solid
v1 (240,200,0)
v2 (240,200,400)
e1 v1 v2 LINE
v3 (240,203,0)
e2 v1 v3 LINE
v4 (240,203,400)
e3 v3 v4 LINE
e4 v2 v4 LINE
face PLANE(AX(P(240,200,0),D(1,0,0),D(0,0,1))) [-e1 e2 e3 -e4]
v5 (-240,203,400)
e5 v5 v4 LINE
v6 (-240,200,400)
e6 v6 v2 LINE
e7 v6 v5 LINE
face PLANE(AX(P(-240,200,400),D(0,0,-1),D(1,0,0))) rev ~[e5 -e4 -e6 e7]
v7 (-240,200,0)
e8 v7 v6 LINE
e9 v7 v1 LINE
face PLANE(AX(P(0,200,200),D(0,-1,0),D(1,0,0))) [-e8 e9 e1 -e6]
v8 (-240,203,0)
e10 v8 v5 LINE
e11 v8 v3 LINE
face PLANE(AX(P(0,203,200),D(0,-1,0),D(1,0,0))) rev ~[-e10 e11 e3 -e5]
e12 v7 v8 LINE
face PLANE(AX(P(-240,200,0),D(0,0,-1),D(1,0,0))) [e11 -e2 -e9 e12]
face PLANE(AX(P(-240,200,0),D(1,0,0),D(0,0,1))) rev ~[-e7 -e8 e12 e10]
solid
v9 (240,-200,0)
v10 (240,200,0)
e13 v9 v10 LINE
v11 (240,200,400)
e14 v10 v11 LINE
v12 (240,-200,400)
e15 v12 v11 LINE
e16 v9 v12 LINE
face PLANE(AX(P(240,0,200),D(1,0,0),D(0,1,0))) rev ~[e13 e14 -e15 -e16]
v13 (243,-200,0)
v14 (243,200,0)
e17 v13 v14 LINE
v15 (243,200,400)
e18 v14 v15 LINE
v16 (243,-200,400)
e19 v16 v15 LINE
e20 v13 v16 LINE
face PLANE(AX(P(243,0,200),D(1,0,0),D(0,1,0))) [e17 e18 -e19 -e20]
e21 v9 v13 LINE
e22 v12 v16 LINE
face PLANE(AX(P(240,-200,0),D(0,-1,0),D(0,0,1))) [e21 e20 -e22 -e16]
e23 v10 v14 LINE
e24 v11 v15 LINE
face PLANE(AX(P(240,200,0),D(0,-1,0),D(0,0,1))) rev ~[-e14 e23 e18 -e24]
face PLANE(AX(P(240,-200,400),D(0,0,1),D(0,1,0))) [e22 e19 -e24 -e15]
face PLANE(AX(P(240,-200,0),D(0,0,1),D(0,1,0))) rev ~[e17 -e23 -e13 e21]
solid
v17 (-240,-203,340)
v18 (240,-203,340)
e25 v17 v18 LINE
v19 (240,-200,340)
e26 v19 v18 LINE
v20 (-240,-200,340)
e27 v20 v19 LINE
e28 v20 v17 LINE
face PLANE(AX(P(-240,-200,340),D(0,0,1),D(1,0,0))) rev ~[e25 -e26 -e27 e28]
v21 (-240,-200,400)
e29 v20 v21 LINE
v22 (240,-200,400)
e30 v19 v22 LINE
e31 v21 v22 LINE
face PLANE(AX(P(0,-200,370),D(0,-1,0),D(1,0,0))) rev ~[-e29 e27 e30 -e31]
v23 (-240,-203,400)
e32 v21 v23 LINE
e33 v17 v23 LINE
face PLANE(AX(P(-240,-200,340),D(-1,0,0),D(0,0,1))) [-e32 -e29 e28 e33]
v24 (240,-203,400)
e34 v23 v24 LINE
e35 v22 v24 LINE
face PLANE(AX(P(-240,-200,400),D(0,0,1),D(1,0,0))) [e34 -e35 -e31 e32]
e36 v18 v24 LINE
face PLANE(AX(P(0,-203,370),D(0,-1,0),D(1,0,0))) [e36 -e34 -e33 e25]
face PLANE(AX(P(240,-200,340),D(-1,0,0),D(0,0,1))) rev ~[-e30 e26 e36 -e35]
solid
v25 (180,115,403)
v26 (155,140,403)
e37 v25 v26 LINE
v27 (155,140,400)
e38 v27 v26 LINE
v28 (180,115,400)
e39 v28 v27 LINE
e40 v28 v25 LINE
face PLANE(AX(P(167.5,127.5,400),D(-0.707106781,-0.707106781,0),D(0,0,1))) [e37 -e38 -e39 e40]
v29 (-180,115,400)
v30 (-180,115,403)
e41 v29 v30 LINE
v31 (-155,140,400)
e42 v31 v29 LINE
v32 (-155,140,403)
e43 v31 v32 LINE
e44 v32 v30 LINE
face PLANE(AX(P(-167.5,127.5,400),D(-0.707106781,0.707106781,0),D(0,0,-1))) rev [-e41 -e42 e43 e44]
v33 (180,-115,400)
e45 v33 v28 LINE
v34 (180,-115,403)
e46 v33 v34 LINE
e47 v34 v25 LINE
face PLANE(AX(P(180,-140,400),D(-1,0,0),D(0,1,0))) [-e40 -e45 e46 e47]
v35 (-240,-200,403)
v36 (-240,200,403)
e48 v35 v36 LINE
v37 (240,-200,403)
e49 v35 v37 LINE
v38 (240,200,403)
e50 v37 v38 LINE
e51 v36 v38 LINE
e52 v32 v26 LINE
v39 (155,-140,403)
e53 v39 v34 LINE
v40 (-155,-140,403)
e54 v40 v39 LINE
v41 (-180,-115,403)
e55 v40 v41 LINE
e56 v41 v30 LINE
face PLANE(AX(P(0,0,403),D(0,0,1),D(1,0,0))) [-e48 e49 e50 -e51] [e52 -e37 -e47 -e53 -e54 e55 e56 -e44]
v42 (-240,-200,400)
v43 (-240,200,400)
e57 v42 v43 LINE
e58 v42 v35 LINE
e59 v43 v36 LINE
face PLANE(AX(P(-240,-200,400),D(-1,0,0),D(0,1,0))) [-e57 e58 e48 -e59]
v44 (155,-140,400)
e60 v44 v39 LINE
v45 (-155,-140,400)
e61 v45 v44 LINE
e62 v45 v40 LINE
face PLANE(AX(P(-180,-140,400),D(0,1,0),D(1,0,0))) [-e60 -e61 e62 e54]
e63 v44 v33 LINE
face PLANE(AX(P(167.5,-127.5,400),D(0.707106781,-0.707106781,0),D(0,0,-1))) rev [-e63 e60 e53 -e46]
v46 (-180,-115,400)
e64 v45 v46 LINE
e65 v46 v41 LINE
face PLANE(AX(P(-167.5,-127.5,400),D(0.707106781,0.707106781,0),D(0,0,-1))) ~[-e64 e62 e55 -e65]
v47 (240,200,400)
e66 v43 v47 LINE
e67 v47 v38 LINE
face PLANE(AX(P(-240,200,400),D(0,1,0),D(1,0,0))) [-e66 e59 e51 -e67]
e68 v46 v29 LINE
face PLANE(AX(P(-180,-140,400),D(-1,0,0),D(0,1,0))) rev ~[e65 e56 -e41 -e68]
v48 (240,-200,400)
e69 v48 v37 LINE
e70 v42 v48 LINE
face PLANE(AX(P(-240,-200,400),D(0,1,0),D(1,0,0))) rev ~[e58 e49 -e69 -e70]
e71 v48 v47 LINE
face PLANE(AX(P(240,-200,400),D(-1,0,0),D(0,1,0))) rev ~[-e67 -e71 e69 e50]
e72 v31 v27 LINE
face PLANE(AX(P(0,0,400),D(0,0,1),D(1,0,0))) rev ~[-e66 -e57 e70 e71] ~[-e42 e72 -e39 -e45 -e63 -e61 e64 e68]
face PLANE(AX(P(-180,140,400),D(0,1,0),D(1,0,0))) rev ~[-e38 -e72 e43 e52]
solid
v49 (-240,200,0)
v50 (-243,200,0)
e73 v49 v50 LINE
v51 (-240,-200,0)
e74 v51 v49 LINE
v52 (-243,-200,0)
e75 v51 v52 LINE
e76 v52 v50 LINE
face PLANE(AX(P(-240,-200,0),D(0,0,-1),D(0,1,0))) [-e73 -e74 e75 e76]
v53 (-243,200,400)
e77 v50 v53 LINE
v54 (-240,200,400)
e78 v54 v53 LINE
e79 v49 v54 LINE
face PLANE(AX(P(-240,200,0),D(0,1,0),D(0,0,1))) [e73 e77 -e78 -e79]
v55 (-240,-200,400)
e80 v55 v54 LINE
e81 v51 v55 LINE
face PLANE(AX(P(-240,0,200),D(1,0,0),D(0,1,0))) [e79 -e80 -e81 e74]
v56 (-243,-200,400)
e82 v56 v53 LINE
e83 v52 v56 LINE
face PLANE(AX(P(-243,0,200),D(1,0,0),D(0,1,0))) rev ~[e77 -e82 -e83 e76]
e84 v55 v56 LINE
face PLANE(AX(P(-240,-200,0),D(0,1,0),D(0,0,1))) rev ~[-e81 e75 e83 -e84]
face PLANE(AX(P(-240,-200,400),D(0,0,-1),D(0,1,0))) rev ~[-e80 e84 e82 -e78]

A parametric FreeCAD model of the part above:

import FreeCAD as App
import Part
import Sketcher
Q = App.Units.Quantity


def edges_at(feature, points):
    """Names of the edges that pass closest to the given points."""
    edges = feature.Shape.Edges
    near = lambda p: min(range(len(edges)), key=lambda i: edges[i].distToShape(Part.Vertex(*p))[0])
    return sorted({f"Edge{near(p) + 1}" for p in points})

doc = App.newDocument("Part")
params = doc.addObject("Spreadsheet::Sheet", "Params")
for row, (alias, value) in enumerate([
    ("sketch1_width", "480 mm"),
    ("sketch1_width2", "360 mm"),
    ("sketch1_height", "400 mm"),
    ("sketch1_height2", "280 mm"),
    ("pad1_length", "3 mm"),
    ("chamfer_size", "25 mm"),
    ("sketch2_width", "400 mm"),
    ("pad2_length", "3 mm"),
    ("sketch3_width", "400 mm"),
    ("pad3_length", "3 mm"),
    ("sketch4_width", "480 mm"),
    ("sketch4_height", "400 mm"),
    ("pad4_length", "3 mm"),
    ("sketch5_width", "480 mm"),
    ("sketch5_height", "60 mm"),
    ("pad5_length", "3 mm"),
], start=1):
    params.set(f"A{row}", alias)
    params.set(f"B{row}", "=" + value)
    params.setAlias(f"B{row}", alias)

body = doc.addObject("PartDesign::Body", "Body")

sketch1 = body.newObject("Sketcher::SketchObject", "Sketch")
sketch1.AttachmentSupport = (doc.getObject("XY_Plane"), [""])
sketch1.MapMode = "FlatFace"
sketch1.AttachmentOffset = App.Placement(App.Vector(0, 0, 400), App.Rotation())
sketch1.addGeometry([
    Part.LineSegment(App.Vector(-240, 200, 0), App.Vector(-240, -200, 0)),
    Part.LineSegment(App.Vector(-240, -200, 0), App.Vector(240, -200, 0)),
    Part.LineSegment(App.Vector(240, -200, 0), App.Vector(240, 200, 0)),
    Part.LineSegment(App.Vector(240, 200, 0), App.Vector(-240, 200, 0)),
    Part.LineSegment(App.Vector(180, -140, 0), App.Vector(-180, -140, 0)),
    Part.LineSegment(App.Vector(-180, -140, 0), App.Vector(-180, 140, 0)),
    Part.LineSegment(App.Vector(-180, 140, 0), App.Vector(180, 140, 0)),
    Part.LineSegment(App.Vector(180, 140, 0), App.Vector(180, -140, 0)),
], False)
sketch1.addConstraint([
    Sketcher.Constraint("Coincident", 0, 2, 1, 1),
    Sketcher.Constraint("Coincident", 1, 2, 2, 1),
    Sketcher.Constraint("Coincident", 2, 2, 3, 1),
    Sketcher.Constraint("Coincident", 3, 2, 0, 1),
    Sketcher.Constraint("Coincident", 4, 2, 5, 1),
    Sketcher.Constraint("Coincident", 5, 2, 6, 1),
    Sketcher.Constraint("Coincident", 6, 2, 7, 1),
    Sketcher.Constraint("Coincident", 7, 2, 4, 1),
    Sketcher.Constraint("Vertical", 0),
    Sketcher.Constraint("Horizontal", 1),
    Sketcher.Constraint("Vertical", 2),
    Sketcher.Constraint("Horizontal", 3),
    Sketcher.Constraint("Horizontal", 4),
    Sketcher.Constraint("Vertical", 5),
    Sketcher.Constraint("Horizontal", 6),
    Sketcher.Constraint("Vertical", 7),
    Sketcher.Constraint("Symmetric", 0, 2, 2, 2, -1, 1),
    Sketcher.Constraint("Symmetric", 4, 2, 6, 2, -1, 1),
    Sketcher.Constraint("DistanceX", 1, 1, 1, 2, Q("480 mm")),
    Sketcher.Constraint("DistanceX", 4, 2, 4, 1, Q("360 mm")),
    Sketcher.Constraint("DistanceY", 0, 2, 0, 1, Q("400 mm")),
    Sketcher.Constraint("DistanceY", 5, 1, 5, 2, Q("280 mm")),
])
sketch1.setExpression("Constraints[18]", "Params.sketch1_width")
sketch1.setExpression("Constraints[19]", "Params.sketch1_width2")
sketch1.setExpression("Constraints[20]", "Params.sketch1_height")
sketch1.setExpression("Constraints[21]", "Params.sketch1_height2")
pad1 = body.newObject("PartDesign::Pad", "Pad")
pad1.Profile = sketch1
pad1.setExpression("Length", "Params.pad1_length")
doc.recompute()

chamfer = body.newObject("PartDesign::Chamfer", "Chamfer")
chamfer.Base = (pad1, edges_at(pad1, [
    (-180, -140, 401.5),
    (-180, 140, 401.5),
    (180, 140, 401.5),
    (180, -140, 401.5),
]))
chamfer.setExpression("Size", "Params.chamfer_size")
body2 = doc.addObject("PartDesign::Body", "Body001")

sketch2 = body2.newObject("Sketcher::SketchObject", "Sketch001")
sketch2.AttachmentSupport = (doc.getObject("YZ_Plane001"), [""])
sketch2.MapMode = "FlatFace"
sketch2.AttachmentOffset = App.Placement(App.Vector(0, 0, -240), App.Rotation())
sketch2.addGeometry([
    Part.LineSegment(App.Vector(-200, 400, 0), App.Vector(-200, 0, 0)),
    Part.LineSegment(App.Vector(-200, 0, 0), App.Vector(200, 0, 0)),
    Part.LineSegment(App.Vector(200, 0, 0), App.Vector(200, 400, 0)),
    Part.LineSegment(App.Vector(200, 400, 0), App.Vector(-200, 400, 0)),
], False)
sketch2.addConstraint([
    Sketcher.Constraint("Coincident", 0, 2, 1, 1),
    Sketcher.Constraint("Coincident", 1, 2, 2, 1),
    Sketcher.Constraint("Coincident", 2, 2, 3, 1),
    Sketcher.Constraint("Coincident", 3, 2, 0, 1),
    Sketcher.Constraint("Vertical", 0),
    Sketcher.Constraint("Horizontal", 1),
    Sketcher.Constraint("Vertical", 2),
    Sketcher.Constraint("Horizontal", 3),
    Sketcher.Constraint("Symmetric", 0, 2, 1, 2, -1, 1),
    Sketcher.Constraint("Equal", 3, 0),
    Sketcher.Constraint("DistanceX", 1, 1, 1, 2, Q("400 mm")),
])
sketch2.setExpression("Constraints[10]", "Params.sketch2_width")
pad2 = body2.newObject("PartDesign::Pad", "Pad001")
pad2.Profile = sketch2
pad2.setExpression("Length", "Params.pad2_length")
pad2.Reversed = True
body3 = doc.addObject("PartDesign::Body", "Body002")

sketch3 = body3.newObject("Sketcher::SketchObject", "Sketch002")
sketch3.AttachmentSupport = (doc.getObject("YZ_Plane002"), [""])
sketch3.MapMode = "FlatFace"
sketch3.AttachmentOffset = App.Placement(App.Vector(0, 0, 240), App.Rotation())
sketch3.addGeometry([
    Part.LineSegment(App.Vector(-200, 400, 0), App.Vector(-200, 0, 0)),
    Part.LineSegment(App.Vector(-200, 0, 0), App.Vector(200, 0, 0)),
    Part.LineSegment(App.Vector(200, 0, 0), App.Vector(200, 400, 0)),
    Part.LineSegment(App.Vector(200, 400, 0), App.Vector(-200, 400, 0)),
], False)
sketch3.addConstraint([
    Sketcher.Constraint("Coincident", 0, 2, 1, 1),
    Sketcher.Constraint("Coincident", 1, 2, 2, 1),
    Sketcher.Constraint("Coincident", 2, 2, 3, 1),
    Sketcher.Constraint("Coincident", 3, 2, 0, 1),
    Sketcher.Constraint("Vertical", 0),
    Sketcher.Constraint("Horizontal", 1),
    Sketcher.Constraint("Vertical", 2),
    Sketcher.Constraint("Horizontal", 3),
    Sketcher.Constraint("Symmetric", 0, 2, 1, 2, -1, 1),
    Sketcher.Constraint("Equal", 3, 0),
    Sketcher.Constraint("DistanceX", 1, 1, 1, 2, Q("400 mm")),
])
sketch3.setExpression("Constraints[10]", "Params.sketch3_width")
pad3 = body3.newObject("PartDesign::Pad", "Pad002")
pad3.Profile = sketch3
pad3.setExpression("Length", "Params.pad3_length")
body4 = doc.addObject("PartDesign::Body", "Body003")

sketch4 = body4.newObject("Sketcher::SketchObject", "Sketch003")
sketch4.AttachmentSupport = (doc.getObject("XZ_Plane003"), [""])
sketch4.MapMode = "FlatFace"
sketch4.AttachmentOffset = App.Placement(App.Vector(0, 0, -200), App.Rotation())
sketch4.addGeometry([
    Part.LineSegment(App.Vector(-240, 400, 0), App.Vector(-240, 0, 0)),
    Part.LineSegment(App.Vector(-240, 0, 0), App.Vector(240, 0, 0)),
    Part.LineSegment(App.Vector(240, 0, 0), App.Vector(240, 400, 0)),
    Part.LineSegment(App.Vector(240, 400, 0), App.Vector(-240, 400, 0)),
], False)
sketch4.addConstraint([
    Sketcher.Constraint("Coincident", 0, 2, 1, 1),
    Sketcher.Constraint("Coincident", 1, 2, 2, 1),
    Sketcher.Constraint("Coincident", 2, 2, 3, 1),
    Sketcher.Constraint("Coincident", 3, 2, 0, 1),
    Sketcher.Constraint("Vertical", 0),
    Sketcher.Constraint("Horizontal", 1),
    Sketcher.Constraint("Vertical", 2),
    Sketcher.Constraint("Horizontal", 3),
    Sketcher.Constraint("Symmetric", 0, 2, 1, 2, -1, 1),
    Sketcher.Constraint("DistanceX", 1, 1, 1, 2, Q("480 mm")),
    Sketcher.Constraint("DistanceY", 0, 2, 0, 1, Q("400 mm")),
])
sketch4.setExpression("Constraints[9]", "Params.sketch4_width")
sketch4.setExpression("Constraints[10]", "Params.sketch4_height")
pad4 = body4.newObject("PartDesign::Pad", "Pad003")
pad4.Profile = sketch4
pad4.setExpression("Length", "Params.pad4_length")
pad4.Reversed = True
body5 = doc.addObject("PartDesign::Body", "Body004")

sketch5 = body5.newObject("Sketcher::SketchObject", "Sketch004")
sketch5.AttachmentSupport = (doc.getObject("XZ_Plane004"), [""])
sketch5.MapMode = "FlatFace"
sketch5.AttachmentOffset = App.Placement(App.Vector(0, 0, 200), App.Rotation())
sketch5.addGeometry([
    Part.LineSegment(App.Vector(-240, 400, 0), App.Vector(-240, 340, 0)),
    Part.LineSegment(App.Vector(-240, 340, 0), App.Vector(240, 340, 0)),
    Part.LineSegment(App.Vector(240, 340, 0), App.Vector(240, 400, 0)),
    Part.LineSegment(App.Vector(240, 400, 0), App.Vector(-240, 400, 0)),
], False)
sketch5.addConstraint([
    Sketcher.Constraint("Coincident", 0, 2, 1, 1),
    Sketcher.Constraint("Coincident", 1, 2, 2, 1),
    Sketcher.Constraint("Coincident", 2, 2, 3, 1),
    Sketcher.Constraint("Coincident", 3, 2, 0, 1),
    Sketcher.Constraint("Vertical", 0),
    Sketcher.Constraint("Horizontal", 1),
    Sketcher.Constraint("Vertical", 2),
    Sketcher.Constraint("Horizontal", 3),
    Sketcher.Constraint("DistanceX", 1, 1, 1, 2, Q("480 mm")),
    Sketcher.Constraint("DistanceY", 0, 2, 0, 1, Q("60 mm")),
    Sketcher.Constraint("DistanceX", 0, 2, -1, 1, Q("240 mm")),
    Sketcher.Constraint("DistanceY", -1, 1, 0, 2, Q("340 mm")),
])
sketch5.setExpression("Constraints[8]", "Params.sketch5_width")
sketch5.setExpression("Constraints[9]", "Params.sketch5_height")
pad5 = body5.newObject("PartDesign::Pad", "Pad004")
pad5.Profile = sketch5
pad5.setExpression("Length", "Params.pad5_length")

doc.recompute()
